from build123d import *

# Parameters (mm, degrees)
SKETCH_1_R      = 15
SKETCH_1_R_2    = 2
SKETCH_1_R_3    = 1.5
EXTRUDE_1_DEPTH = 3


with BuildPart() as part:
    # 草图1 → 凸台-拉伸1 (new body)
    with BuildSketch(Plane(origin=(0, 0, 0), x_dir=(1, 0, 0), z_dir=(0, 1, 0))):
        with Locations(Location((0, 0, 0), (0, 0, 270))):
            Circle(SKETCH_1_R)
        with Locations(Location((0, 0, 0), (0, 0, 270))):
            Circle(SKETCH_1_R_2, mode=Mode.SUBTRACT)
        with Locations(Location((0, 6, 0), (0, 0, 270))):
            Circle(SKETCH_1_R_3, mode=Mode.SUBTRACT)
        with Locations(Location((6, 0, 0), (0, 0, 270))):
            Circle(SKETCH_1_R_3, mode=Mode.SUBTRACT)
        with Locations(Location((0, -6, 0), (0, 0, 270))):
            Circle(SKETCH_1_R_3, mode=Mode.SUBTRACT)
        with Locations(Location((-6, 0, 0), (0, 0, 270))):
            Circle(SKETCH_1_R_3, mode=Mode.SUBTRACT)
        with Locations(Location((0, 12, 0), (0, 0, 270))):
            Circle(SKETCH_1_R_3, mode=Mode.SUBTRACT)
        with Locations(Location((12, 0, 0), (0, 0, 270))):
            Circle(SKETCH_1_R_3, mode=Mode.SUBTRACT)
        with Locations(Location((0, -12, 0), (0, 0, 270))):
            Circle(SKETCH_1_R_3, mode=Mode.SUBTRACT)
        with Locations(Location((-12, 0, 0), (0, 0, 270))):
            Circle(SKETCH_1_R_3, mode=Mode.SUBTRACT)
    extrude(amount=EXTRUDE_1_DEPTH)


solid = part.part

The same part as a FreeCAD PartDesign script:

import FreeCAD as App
import Part
import Sketcher

V = App.Vector

doc = App.newDocument("Part")
body = doc.addObject("PartDesign::Body", "Body")

# Sketch on XZ plane
sketch1 = body.newObject("Sketcher::SketchObject", "Sketch")
sketch1.AttachmentSupport = (doc.getObject("XZ_Plane"), [""])
sketch1.MapMode = "FlatFace"
sketch1.addGeometry([
    Part.Circle(V(0, 0, 0), V(0, 0, 1), 15),  # 0
    Part.Circle(V(0, -12, 0), V(0, 0, 1), 1.5),  # 1
    Part.Circle(V(0, -6, 0), V(0, 0, 1), 1.5),  # 2
    Part.Circle(V(-12, 0, 0), V(0, 0, 1), 1.5),  # 3
    Part.Circle(V(-6, 0, 0), V(0, 0, 1), 1.5),  # 4
    Part.Circle(V(12, 0, 0), V(0, 0, 1), 1.5),  # 5
    Part.Circle(V(0, 0, 0), V(0, 0, 1), 2),  # 6
    Part.Circle(V(0, 6, 0), V(0, 0, 1), 1.5),  # 7
    Part.Circle(V(6, 0, 0), V(0, 0, 1), 1.5),  # 8
    Part.Circle(V(0, 12, 0), V(0, 0, 1), 1.5),  # 9
], False)
sketch1.addConstraint([
    Sketcher.Constraint("Coincident", 0, 3, -1, 1),
    Sketcher.Constraint("Coincident", 6, 3, -1, 1),
    Sketcher.Constraint("Equal", 1, 2),
    Sketcher.Constraint("Equal", 2, 3),
    Sketcher.Constraint("Equal", 3, 4),
    Sketcher.Constraint("Equal", 4, 5),
    Sketcher.Constraint("Equal", 5, 7),
    Sketcher.Constraint("Equal", 7, 8),
    Sketcher.Constraint("Equal", 8, 9),
    Sketcher.Constraint("Symmetric", 3, 3, 5, 3, -1, 1),
    Sketcher.Constraint("Symmetric", 2, 3, 7, 3, -1, 1),
    Sketcher.Constraint("Symmetric", 4, 3, 8, 3, -1, 1),
    Sketcher.Constraint("Symmetric", 1, 3, 9, 3, -1, 1),
    Sketcher.Constraint("PointOnObject", 1, 3, -2),
    Sketcher.Constraint("PointOnObject", 2, 3, -2),
    Sketcher.Constraint("PointOnObject", 3, 3, -1),
    Sketcher.Constraint("PointOnObject", 4, 3, -1),
    Sketcher.Constraint("Diameter", 0, 30.0),
    Sketcher.Constraint("Diameter", 1, 3.0),
    Sketcher.Constraint("Diameter", 6, 4.0),
    Sketcher.Constraint("DistanceY", 1, 3, -1, 1, 12.0),
    Sketcher.Constraint("DistanceY", 2, 3, -1, 1, 6.0),
    Sketcher.Constraint("DistanceX", 3, 3, -1, 1, 12.0),
    Sketcher.Constraint("DistanceX", 4, 3, -1, 1, 6.0),
])
pad1 = body.newObject("PartDesign::Pad", "Pad")
pad1.Profile = sketch1
pad1.Length = 3
pad1.Reversed = True

doc.recompute()
